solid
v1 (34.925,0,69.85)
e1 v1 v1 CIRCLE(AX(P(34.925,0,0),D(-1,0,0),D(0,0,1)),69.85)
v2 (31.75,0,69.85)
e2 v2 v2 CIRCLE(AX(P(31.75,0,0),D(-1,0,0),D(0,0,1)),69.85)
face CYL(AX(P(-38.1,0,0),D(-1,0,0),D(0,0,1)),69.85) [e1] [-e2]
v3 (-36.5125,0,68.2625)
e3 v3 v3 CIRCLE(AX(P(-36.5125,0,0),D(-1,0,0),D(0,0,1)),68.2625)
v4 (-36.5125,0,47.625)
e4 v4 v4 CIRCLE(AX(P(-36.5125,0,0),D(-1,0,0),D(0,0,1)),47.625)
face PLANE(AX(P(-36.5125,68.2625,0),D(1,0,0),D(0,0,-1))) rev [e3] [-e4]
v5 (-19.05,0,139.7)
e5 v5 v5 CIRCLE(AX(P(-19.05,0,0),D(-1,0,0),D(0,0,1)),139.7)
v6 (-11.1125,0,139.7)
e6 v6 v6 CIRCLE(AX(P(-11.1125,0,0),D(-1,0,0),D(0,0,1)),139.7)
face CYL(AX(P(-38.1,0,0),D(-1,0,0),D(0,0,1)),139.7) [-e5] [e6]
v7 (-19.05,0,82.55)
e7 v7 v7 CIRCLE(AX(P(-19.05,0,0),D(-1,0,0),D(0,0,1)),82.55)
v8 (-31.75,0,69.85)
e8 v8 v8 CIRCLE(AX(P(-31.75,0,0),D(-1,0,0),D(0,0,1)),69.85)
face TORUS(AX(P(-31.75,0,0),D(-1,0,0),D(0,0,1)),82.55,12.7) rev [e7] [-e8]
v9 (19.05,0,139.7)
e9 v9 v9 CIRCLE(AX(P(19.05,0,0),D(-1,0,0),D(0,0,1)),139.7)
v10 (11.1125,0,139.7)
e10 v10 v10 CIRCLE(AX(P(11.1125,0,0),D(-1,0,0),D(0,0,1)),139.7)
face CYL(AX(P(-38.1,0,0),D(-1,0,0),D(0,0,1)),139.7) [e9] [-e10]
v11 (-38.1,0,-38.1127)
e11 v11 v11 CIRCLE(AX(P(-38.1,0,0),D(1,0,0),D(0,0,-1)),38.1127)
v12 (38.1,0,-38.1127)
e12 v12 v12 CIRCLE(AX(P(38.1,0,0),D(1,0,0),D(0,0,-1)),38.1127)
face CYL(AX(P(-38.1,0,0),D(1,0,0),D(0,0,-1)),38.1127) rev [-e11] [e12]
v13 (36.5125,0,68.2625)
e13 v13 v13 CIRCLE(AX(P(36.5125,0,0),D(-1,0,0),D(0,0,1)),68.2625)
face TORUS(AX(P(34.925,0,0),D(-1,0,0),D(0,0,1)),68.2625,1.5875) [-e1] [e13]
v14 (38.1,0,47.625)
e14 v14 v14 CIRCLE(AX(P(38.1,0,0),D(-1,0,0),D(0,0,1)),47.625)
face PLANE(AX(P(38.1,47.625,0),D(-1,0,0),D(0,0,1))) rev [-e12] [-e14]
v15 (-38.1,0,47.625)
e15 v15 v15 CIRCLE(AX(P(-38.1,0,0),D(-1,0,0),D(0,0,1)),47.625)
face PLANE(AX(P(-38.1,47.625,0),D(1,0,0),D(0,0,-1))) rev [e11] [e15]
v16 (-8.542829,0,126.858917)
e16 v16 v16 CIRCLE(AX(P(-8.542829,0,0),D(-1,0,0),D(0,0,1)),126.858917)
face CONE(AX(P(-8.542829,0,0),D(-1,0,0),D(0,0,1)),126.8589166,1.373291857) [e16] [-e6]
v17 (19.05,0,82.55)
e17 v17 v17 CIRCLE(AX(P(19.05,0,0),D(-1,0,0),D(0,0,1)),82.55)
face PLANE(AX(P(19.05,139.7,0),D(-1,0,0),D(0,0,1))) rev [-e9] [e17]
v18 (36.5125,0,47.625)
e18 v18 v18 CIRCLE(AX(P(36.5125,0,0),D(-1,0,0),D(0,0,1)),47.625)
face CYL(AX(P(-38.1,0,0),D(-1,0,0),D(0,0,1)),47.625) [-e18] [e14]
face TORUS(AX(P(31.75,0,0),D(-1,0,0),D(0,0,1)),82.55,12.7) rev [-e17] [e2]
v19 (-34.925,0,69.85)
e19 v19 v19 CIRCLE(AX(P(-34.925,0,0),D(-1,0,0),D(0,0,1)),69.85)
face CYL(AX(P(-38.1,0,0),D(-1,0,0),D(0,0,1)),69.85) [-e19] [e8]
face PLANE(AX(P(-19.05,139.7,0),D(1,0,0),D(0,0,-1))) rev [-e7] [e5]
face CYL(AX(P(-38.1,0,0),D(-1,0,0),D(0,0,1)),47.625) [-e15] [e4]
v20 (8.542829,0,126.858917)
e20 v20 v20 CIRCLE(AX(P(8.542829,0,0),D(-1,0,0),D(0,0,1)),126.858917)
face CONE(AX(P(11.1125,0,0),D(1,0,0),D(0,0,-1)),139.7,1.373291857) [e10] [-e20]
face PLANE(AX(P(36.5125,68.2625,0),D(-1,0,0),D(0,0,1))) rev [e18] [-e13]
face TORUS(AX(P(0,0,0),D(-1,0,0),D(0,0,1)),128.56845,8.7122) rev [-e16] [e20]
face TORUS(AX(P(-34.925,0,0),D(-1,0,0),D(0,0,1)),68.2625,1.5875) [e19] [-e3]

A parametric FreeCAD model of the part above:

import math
import FreeCAD as App
import Part
import Sketcher
from FreeCAD import Vector
Q = App.Units.Quantity

doc = App.newDocument("Part")
body = doc.addObject("PartDesign::Body", "Body")

sketch1 = body.newObject("Sketcher::SketchObject", "Sketch")
sketch1.AttachmentSupport = (doc.getObject("XY_Plane"), [""])
sketch1.MapMode = "FlatFace"
sketch1.addGeometry(Part.LineSegment(Vector(-38.1, 47.6, 0), Vector(-38.1, 0, 0)), False)
sketch1.addGeometry(Part.LineSegment(Vector(-38.1, 0, 0), Vector(38.1, 0, 0)), False)
sketch1.addGeometry(Part.LineSegment(Vector(38.1, 0, 0), Vector(38.1, 47.6, 0)), False)
sketch1.addGeometry(Part.LineSegment(Vector(38.1, 47.6, 0), Vector(36.5, 47.6, 0)), False)
sketch1.addGeometry(Part.LineSegment(Vector(36.5, 47.6, 0), Vector(36.5, 68.3, 0)), False)
sketch1.addGeometry(Part.ArcOfCircle(Part.Circle(Vector(34.9, 68.3, 0), Vector(0, 0, 1), 1.6), math.radians(0), math.radians(90)), False)
sketch1.addGeometry(Part.LineSegment(Vector(34.9, 69.8, 0), Vector(31.8, 69.8, 0)), False)
sketch1.addGeometry(Part.ArcOfCircle(Part.Circle(Vector(31.8, 82.5, 0), Vector(0, 0, 1), 12.7), math.radians(180), math.radians(270)), False)
sketch1.addGeometry(Part.LineSegment(Vector(19.1, 82.5, 0), Vector(19.1, 139.7, 0)), False)
sketch1.addGeometry(Part.LineSegment(Vector(19.1, 139.7, 0), Vector(11.1, 139.7, 0)), False)
sketch1.addGeometry(Part.LineSegment(Vector(11.1, 139.7, 0), Vector(8.5, 126.9, 0)), False)
sketch1.addGeometry(Part.ArcOfCircle(Part.Circle(Vector(0, 128.6, 0), Vector(0, 0, 1), 8.7), math.radians(-169), math.radians(-11)), False)
sketch1.addGeometry(Part.LineSegment(Vector(-8.5, 126.9, 0), Vector(-11.1, 139.7, 0)), False)
sketch1.addGeometry(Part.LineSegment(Vector(-11.1, 139.7, 0), Vector(-19.1, 139.7, 0)), False)
sketch1.addGeometry(Part.LineSegment(Vector(-19.1, 139.7, 0), Vector(-19.1, 82.5, 0)), False)
sketch1.addGeometry(Part.ArcOfCircle(Part.Circle(Vector(-31.8, 82.5, 0), Vector(0, 0, 1), 12.7), math.radians(-90), math.radians(0)), False)
sketch1.addGeometry(Part.LineSegment(Vector(-31.8, 69.8, 0), Vector(-34.9, 69.8, 0)), False)
sketch1.addGeometry(Part.ArcOfCircle(Part.Circle(Vector(-34.9, 68.3, 0), Vector(0, 0, 1), 1.6), math.radians(90), math.radians(180)), False)
sketch1.addGeometry(Part.LineSegment(Vector(-36.5, 68.3, 0), Vector(-36.5, 47.6, 0)), False)
sketch1.addGeometry(Part.LineSegment(Vector(-36.5, 47.6, 0), Vector(-38.1, 47.6, 0)), False)
sketch1.addConstraint(Sketcher.Constraint("Coincident", 0, 2, 1, 1))
sketch1.addConstraint(Sketcher.Constraint("Coincident", 1, 2, 2, 1))
sketch1.addConstraint(Sketcher.Constraint("Coincident", 2, 2, 3, 1))
sketch1.addConstraint(Sketcher.Constraint("Coincident", 3, 2, 4, 1))
sketch1.addConstraint(Sketcher.Constraint("Tangent", 4, 2, 5, 1))
sketch1.addConstraint(Sketcher.Constraint("Tangent", 5, 2, 6, 1))
sketch1.addConstraint(Sketcher.Constraint("Tangent", 6, 2, 7, 2))
sketch1.addConstraint(Sketcher.Constraint("Tangent", 7, 1, 8, 1))
sketch1.addConstraint(Sketcher.Constraint("Coincident", 8, 2, 9, 1))
sketch1.addConstraint(Sketcher.Constraint("Coincident", 9, 2, 10, 1))
sketch1.addConstraint(Sketcher.Constraint("Tangent", 10, 2, 11, 2))
sketch1.addConstraint(Sketcher.Constraint("Tangent", 11, 1, 12, 1))
sketch1.addConstraint(Sketcher.Constraint("Coincident", 12, 2, 13, 1))
sketch1.addConstraint(Sketcher.Constraint("Coincident", 13, 2, 14, 1))
sketch1.addConstraint(Sketcher.Constraint("Tangent", 14, 2, 15, 2))
sketch1.addConstraint(Sketcher.Constraint("Tangent", 15, 1, 16, 1))
sketch1.addConstraint(Sketcher.Constraint("Tangent", 16, 2, 17, 1))
sketch1.addConstraint(Sketcher.Constraint("Tangent", 17, 2, 18, 1))
sketch1.addConstraint(Sketcher.Constraint("Coincident", 18, 2, 19, 1))
sketch1.addConstraint(Sketcher.Constraint("Coincident", 19, 2, 0, 1))
sketch1.addConstraint(Sketcher.Constraint("Vertical", 0))
sketch1.addConstraint(Sketcher.Constraint("Horizontal", 1))
sketch1.addConstraint(Sketcher.Constraint("Vertical", 2))
sketch1.addConstraint(Sketcher.Constraint("Horizontal", 3))
sketch1.addConstraint(Sketcher.Constraint("Vertical", 4))
sketch1.addConstraint(Sketcher.Constraint("Horizontal", 6))
sketch1.addConstraint(Sketcher.Constraint("Vertical", 8))
sketch1.addConstraint(Sketcher.Constraint("Horizontal", 9))
sketch1.addConstraint(Sketcher.Constraint("Horizontal", 13))
sketch1.addConstraint(Sketcher.Constraint("Vertical", 14))
sketch1.addConstraint(Sketcher.Constraint("Horizontal", 16))
sketch1.addConstraint(Sketcher.Constraint("Vertical", 18))
sketch1.addConstraint(Sketcher.Constraint("Horizontal", 19))
sketch1.addConstraint(Sketcher.Constraint("Equal", 7, 15))
sketch1.addConstraint(Sketcher.Constraint("Equal", 5, 17))
sketch1.addConstraint(Sketcher.Constraint("Symmetric", 0, 2, 1, 2, -1, 1))
sketch1.addConstraint(Sketcher.Constraint("Symmetric", 7, 3, 15, 3, -2))
sketch1.addConstraint(Sketcher.Constraint("Symmetric", 10, 2, 11, 1, -2))
sketch1.addConstraint(Sketcher.Constraint("Symmetric", 3, 2, 18, 2, -2))
sketch1.addConstraint(Sketcher.Constraint("Horizontal", 9, 2, 12, 2))
sketch1.addConstraint(Sketcher.Constraint("Radius", 7, Q("0.5 in")))
sketch1.addConstraint(Sketcher.Constraint("DistanceX", 1, 1, 1, 2, Q("3 in")))
sketch1.addConstraint(Sketcher.Constraint("Radius", 5, Q("0.0625 in")))
sketch1.addConstraint(Sketcher.Constraint("Radius", 11, Q("0.343 in")))
sketch1.addConstraint(Sketcher.Constraint("DistanceX", 15, 1, 7, 1, Q("2 in")))
sketch1.addConstraint(Sketcher.Constraint("DistanceY", 8, 1, 8, 2, Q("2.25 in")))
sketch1.addConstraint(Sketcher.Constraint("DistanceY", -1, 1, 8, 2, Q("5.5 in")))
sketch1.addConstraint(Sketcher.Constraint("DistanceX", 3, 2, 3, 1, Q("0.0625 in")))
sketch1.addConstraint(Sketcher.Constraint("DistanceX", 9, 2, 9, 1, Q("0.3125 in")))
sketch1.addConstraint(Sketcher.Constraint("DistanceY", 0, 2, 0, 1, Q("1.875 in")))
sketch1.addConstraint(Sketcher.Constraint("DistanceY", -1, 1, 11, 3, 128.56845))
revolution = body.newObject("PartDesign::Revolution", "Revolution")
revolution.Profile = sketch1
revolution.ReferenceAxis = (sketch1, ["H_Axis"])
revolution.Angle = 360

sketch2 = body.newObject("Sketcher::SketchObject", "Sketch001")
sketch2.AttachmentSupport = (doc.getObject("YZ_Plane"), [""])
sketch2.MapMode = "FlatFace"
sketch2.AttachmentOffset = App.Placement(Vector(0, 0, 1.5 * 25.4), App.Rotation())
sketch2.addGeometry(Part.Circle(Vector(0, 0, 0), Vector(0, 0, 1), 38), False)
sketch2.addConstraint(Sketcher.Constraint("Coincident", 0, 3, -1, 1))
sketch2.addConstraint(Sketcher.Constraint("Diameter", 0, Q("3.001 in")))
pocket1 = body.newObject("PartDesign::Pocket", "Pocket")
pocket1.Profile = sketch2
pocket1.Type = "ThroughAll"

doc.recompute()
